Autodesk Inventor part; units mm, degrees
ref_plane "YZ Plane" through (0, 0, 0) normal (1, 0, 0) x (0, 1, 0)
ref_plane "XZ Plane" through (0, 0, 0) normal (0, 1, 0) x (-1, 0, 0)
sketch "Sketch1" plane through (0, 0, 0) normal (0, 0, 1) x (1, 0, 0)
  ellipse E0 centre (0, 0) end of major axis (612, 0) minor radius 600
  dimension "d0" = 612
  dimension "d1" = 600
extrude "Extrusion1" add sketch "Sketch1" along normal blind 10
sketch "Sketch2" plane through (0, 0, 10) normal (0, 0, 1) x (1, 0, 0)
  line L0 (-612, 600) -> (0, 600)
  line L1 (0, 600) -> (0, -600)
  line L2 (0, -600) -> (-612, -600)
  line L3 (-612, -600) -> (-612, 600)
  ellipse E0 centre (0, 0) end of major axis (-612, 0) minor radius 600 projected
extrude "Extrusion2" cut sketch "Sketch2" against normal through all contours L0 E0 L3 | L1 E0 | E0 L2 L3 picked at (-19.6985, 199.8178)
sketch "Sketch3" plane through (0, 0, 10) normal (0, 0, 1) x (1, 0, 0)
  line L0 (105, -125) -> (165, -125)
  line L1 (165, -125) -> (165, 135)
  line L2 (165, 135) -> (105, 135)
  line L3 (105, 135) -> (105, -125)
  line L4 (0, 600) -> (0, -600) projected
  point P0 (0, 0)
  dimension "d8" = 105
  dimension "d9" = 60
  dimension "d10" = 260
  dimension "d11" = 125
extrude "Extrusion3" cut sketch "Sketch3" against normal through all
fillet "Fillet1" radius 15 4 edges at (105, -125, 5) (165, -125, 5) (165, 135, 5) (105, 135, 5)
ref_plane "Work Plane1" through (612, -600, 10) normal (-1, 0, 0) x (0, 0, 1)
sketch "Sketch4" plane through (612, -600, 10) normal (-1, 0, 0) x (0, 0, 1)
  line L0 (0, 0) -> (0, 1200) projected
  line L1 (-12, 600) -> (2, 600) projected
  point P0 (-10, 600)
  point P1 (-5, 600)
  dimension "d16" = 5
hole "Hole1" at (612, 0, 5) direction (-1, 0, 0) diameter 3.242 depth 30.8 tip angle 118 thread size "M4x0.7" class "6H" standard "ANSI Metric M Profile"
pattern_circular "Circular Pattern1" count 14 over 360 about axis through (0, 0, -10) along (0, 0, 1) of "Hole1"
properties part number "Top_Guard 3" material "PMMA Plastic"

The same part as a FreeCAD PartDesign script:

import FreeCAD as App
import Part
import Sketcher
Q = App.Units.Quantity


def edges_at(feature, points):
    """Names of the edges that pass closest to the given points."""
    edges = feature.Shape.Edges
    near = lambda p: min(range(len(edges)), key=lambda i: edges[i].distToShape(Part.Vertex(*p))[0])
    return sorted({f"Edge{near(p) + 1}" for p in points})


def add_polygon(sketch, points):
    """Adds a closed chain of lines whose ends are joined by coincident constraints."""
    first, n = sketch.GeometryCount, len(points)
    for a, b in zip(points, points[1:] + points[:1]):
        sketch.addGeometry(Part.LineSegment(App.Vector(*a, 0), App.Vector(*b, 0)), False)
    for i in range(n):
        sketch.addConstraint(Sketcher.Constraint("Coincident", first + i, 2, first + (i + 1) % n, 1))

doc = App.newDocument("Part")
params = doc.addObject("Spreadsheet::Sheet", "Params")
for row, (alias, value) in enumerate([
    ("pad1_length", "10 mm"),
    ("sketch2_width", "612 mm"),
    ("sketch2_height", "1200 mm"),
    ("sketch3_width", "60 mm"),
    ("sketch3_height", "260 mm"),
    ("fillet_radius", "15 mm"),
    ("hole_diameter", "3.242 mm"),
    ("hole_depth", "30.8 mm"),
], start=1):
    params.set(f"A{row}", alias)
    params.set(f"B{row}", "=" + value)
    params.setAlias(f"B{row}", alias)

body = doc.addObject("PartDesign::Body", "Body")

# Sketch on XY plane
sketch1 = doc.addObject("Sketcher::SketchObject", "Sketch")
body.addObject(sketch1)
sketch1.AttachmentSupport = (doc.XY_Plane, [""])
sketch1.MapMode = "FlatFace"
sketch1.addGeometry(Part.Ellipse(App.Vector(612, 0, 0), App.Vector(0, 600, 0), App.Vector(0, 0, 0)), False)
sketch1.addConstraint(Sketcher.Constraint("Block", 0))
pad1 = doc.addObject("PartDesign::Pad", "Pad")
body.addObject(pad1)
pad1.Profile = sketch1
pad1.setExpression("Length", "Params.pad1_length")

# Sketch on XY plane
sketch2 = doc.addObject("Sketcher::SketchObject", "Sketch001")
body.addObject(sketch2)
sketch2.AttachmentSupport = (doc.XY_Plane, [""])
sketch2.MapMode = "FlatFace"
sketch2.AttachmentOffset = App.Placement(App.Vector(0, 0, 10), App.Rotation())
add_polygon(sketch2, [(0, 600), (-612, 600), (-612, -600), (0, -600)])  # lines 0-3
sketch2.addConstraint([
    Sketcher.Constraint("Horizontal", 0),
    Sketcher.Constraint("Vertical", 1),
    Sketcher.Constraint("Horizontal", 2),
    Sketcher.Constraint("Vertical", 3),
    Sketcher.Constraint("Symmetric", 2, 2, 3, 2, -1, 1),
    Sketcher.Constraint("DistanceX", 0, 2, 0, 1, Q("612 mm")),
    Sketcher.Constraint("DistanceY", 1, 2, 1, 1, Q("1200 mm")),
])
sketch2.setExpression("Constraints[9]", "Params.sketch2_width")
sketch2.setExpression("Constraints[10]", "Params.sketch2_height")
pocket1 = doc.addObject("PartDesign::Pocket", "Pocket")
body.addObject(pocket1)
pocket1.Profile = sketch2
pocket1.Type = "ThroughAll"

# Sketch on XY plane
sketch3 = doc.addObject("Sketcher::SketchObject", "Sketch002")
body.addObject(sketch3)
sketch3.AttachmentSupport = (doc.XY_Plane, [""])
sketch3.MapMode = "FlatFace"
sketch3.AttachmentOffset = App.Placement(App.Vector(0, 0, 10), App.Rotation())
add_polygon(sketch3, [(105, 135), (105, -125), (165, -125), (165, 135)])  # lines 0-3
sketch3.addConstraint([
    Sketcher.Constraint("Vertical", 0),
    Sketcher.Constraint("Horizontal", 1),
    Sketcher.Constraint("Vertical", 2),
    Sketcher.Constraint("Horizontal", 3),
    Sketcher.Constraint("DistanceX", 1, 1, 1, 2, Q("60 mm")),
    Sketcher.Constraint("DistanceY", 0, 2, 0, 1, Q("260 mm")),
    Sketcher.Constraint("DistanceX", -1, 1, 0, 2, Q("105 mm")),
    Sketcher.Constraint("DistanceY", 0, 2, -1, 1, Q("125 mm")),
])
sketch3.setExpression("Constraints[8]", "Params.sketch3_width")
sketch3.setExpression("Constraints[9]", "Params.sketch3_height")
pocket2 = doc.addObject("PartDesign::Pocket", "Pocket001")
body.addObject(pocket2)
pocket2.Profile = sketch3
pocket2.Type = "ThroughAll"
doc.recompute()

fillet = doc.addObject("PartDesign::Fillet", "Fillet")
body.addObject(fillet)
fillet.Base = (pocket2, edges_at(pocket2, [
    (105, -125, 5),
    (165, -125, 5),
    (165, 135, 5),
    (105, 135, 5),
]))
fillet.setExpression("Radius", "Params.fillet_radius")

# Sketch on YZ plane
sketch4 = doc.addObject("Sketcher::SketchObject", "Sketch003")
body.addObject(sketch4)
sketch4.AttachmentSupport = (doc.YZ_Plane, [""])
sketch4.MapMode = "FlatFace"
sketch4.AttachmentOffset = App.Placement(App.Vector(0, 0, 612), App.Rotation())
sketch4.addGeometry(Part.Circle(App.Vector(0, 5, 0), App.Vector(0, 0, 1), 1.6), False)
sketch4.addConstraint([
    Sketcher.Constraint("PointOnObject", 0, 3, -2),
    Sketcher.Constraint("Diameter", 0, Q("3.242 mm")),
    Sketcher.Constraint("DistanceY", -1, 1, 0, 3, Q("5 mm")),
])
doc.recompute()
hole = doc.addObject("PartDesign::Hole", "Hole")
body.addObject(hole)
hole.Profile = sketch4
hole.ThreadType = "None"
hole.setExpression("Diameter", "Params.hole_diameter")
hole.DepthType = "Dimension"
hole.setExpression("Depth", "Params.hole_depth")
hole.DrillPoint = "Angled"
hole.DrillPointAngle = 118
doc.recompute()

polarpattern = doc.addObject("PartDesign::PolarPattern", "PolarPattern")
body.addObject(polarpattern)
polarpattern.Originals = [hole]
polarpattern.Axis = (doc.Z_Axis, [""])
polarpattern.Angle = 360
polarpattern.Occurrences = 14
body.Tip = polarpattern

doc.recompute()
